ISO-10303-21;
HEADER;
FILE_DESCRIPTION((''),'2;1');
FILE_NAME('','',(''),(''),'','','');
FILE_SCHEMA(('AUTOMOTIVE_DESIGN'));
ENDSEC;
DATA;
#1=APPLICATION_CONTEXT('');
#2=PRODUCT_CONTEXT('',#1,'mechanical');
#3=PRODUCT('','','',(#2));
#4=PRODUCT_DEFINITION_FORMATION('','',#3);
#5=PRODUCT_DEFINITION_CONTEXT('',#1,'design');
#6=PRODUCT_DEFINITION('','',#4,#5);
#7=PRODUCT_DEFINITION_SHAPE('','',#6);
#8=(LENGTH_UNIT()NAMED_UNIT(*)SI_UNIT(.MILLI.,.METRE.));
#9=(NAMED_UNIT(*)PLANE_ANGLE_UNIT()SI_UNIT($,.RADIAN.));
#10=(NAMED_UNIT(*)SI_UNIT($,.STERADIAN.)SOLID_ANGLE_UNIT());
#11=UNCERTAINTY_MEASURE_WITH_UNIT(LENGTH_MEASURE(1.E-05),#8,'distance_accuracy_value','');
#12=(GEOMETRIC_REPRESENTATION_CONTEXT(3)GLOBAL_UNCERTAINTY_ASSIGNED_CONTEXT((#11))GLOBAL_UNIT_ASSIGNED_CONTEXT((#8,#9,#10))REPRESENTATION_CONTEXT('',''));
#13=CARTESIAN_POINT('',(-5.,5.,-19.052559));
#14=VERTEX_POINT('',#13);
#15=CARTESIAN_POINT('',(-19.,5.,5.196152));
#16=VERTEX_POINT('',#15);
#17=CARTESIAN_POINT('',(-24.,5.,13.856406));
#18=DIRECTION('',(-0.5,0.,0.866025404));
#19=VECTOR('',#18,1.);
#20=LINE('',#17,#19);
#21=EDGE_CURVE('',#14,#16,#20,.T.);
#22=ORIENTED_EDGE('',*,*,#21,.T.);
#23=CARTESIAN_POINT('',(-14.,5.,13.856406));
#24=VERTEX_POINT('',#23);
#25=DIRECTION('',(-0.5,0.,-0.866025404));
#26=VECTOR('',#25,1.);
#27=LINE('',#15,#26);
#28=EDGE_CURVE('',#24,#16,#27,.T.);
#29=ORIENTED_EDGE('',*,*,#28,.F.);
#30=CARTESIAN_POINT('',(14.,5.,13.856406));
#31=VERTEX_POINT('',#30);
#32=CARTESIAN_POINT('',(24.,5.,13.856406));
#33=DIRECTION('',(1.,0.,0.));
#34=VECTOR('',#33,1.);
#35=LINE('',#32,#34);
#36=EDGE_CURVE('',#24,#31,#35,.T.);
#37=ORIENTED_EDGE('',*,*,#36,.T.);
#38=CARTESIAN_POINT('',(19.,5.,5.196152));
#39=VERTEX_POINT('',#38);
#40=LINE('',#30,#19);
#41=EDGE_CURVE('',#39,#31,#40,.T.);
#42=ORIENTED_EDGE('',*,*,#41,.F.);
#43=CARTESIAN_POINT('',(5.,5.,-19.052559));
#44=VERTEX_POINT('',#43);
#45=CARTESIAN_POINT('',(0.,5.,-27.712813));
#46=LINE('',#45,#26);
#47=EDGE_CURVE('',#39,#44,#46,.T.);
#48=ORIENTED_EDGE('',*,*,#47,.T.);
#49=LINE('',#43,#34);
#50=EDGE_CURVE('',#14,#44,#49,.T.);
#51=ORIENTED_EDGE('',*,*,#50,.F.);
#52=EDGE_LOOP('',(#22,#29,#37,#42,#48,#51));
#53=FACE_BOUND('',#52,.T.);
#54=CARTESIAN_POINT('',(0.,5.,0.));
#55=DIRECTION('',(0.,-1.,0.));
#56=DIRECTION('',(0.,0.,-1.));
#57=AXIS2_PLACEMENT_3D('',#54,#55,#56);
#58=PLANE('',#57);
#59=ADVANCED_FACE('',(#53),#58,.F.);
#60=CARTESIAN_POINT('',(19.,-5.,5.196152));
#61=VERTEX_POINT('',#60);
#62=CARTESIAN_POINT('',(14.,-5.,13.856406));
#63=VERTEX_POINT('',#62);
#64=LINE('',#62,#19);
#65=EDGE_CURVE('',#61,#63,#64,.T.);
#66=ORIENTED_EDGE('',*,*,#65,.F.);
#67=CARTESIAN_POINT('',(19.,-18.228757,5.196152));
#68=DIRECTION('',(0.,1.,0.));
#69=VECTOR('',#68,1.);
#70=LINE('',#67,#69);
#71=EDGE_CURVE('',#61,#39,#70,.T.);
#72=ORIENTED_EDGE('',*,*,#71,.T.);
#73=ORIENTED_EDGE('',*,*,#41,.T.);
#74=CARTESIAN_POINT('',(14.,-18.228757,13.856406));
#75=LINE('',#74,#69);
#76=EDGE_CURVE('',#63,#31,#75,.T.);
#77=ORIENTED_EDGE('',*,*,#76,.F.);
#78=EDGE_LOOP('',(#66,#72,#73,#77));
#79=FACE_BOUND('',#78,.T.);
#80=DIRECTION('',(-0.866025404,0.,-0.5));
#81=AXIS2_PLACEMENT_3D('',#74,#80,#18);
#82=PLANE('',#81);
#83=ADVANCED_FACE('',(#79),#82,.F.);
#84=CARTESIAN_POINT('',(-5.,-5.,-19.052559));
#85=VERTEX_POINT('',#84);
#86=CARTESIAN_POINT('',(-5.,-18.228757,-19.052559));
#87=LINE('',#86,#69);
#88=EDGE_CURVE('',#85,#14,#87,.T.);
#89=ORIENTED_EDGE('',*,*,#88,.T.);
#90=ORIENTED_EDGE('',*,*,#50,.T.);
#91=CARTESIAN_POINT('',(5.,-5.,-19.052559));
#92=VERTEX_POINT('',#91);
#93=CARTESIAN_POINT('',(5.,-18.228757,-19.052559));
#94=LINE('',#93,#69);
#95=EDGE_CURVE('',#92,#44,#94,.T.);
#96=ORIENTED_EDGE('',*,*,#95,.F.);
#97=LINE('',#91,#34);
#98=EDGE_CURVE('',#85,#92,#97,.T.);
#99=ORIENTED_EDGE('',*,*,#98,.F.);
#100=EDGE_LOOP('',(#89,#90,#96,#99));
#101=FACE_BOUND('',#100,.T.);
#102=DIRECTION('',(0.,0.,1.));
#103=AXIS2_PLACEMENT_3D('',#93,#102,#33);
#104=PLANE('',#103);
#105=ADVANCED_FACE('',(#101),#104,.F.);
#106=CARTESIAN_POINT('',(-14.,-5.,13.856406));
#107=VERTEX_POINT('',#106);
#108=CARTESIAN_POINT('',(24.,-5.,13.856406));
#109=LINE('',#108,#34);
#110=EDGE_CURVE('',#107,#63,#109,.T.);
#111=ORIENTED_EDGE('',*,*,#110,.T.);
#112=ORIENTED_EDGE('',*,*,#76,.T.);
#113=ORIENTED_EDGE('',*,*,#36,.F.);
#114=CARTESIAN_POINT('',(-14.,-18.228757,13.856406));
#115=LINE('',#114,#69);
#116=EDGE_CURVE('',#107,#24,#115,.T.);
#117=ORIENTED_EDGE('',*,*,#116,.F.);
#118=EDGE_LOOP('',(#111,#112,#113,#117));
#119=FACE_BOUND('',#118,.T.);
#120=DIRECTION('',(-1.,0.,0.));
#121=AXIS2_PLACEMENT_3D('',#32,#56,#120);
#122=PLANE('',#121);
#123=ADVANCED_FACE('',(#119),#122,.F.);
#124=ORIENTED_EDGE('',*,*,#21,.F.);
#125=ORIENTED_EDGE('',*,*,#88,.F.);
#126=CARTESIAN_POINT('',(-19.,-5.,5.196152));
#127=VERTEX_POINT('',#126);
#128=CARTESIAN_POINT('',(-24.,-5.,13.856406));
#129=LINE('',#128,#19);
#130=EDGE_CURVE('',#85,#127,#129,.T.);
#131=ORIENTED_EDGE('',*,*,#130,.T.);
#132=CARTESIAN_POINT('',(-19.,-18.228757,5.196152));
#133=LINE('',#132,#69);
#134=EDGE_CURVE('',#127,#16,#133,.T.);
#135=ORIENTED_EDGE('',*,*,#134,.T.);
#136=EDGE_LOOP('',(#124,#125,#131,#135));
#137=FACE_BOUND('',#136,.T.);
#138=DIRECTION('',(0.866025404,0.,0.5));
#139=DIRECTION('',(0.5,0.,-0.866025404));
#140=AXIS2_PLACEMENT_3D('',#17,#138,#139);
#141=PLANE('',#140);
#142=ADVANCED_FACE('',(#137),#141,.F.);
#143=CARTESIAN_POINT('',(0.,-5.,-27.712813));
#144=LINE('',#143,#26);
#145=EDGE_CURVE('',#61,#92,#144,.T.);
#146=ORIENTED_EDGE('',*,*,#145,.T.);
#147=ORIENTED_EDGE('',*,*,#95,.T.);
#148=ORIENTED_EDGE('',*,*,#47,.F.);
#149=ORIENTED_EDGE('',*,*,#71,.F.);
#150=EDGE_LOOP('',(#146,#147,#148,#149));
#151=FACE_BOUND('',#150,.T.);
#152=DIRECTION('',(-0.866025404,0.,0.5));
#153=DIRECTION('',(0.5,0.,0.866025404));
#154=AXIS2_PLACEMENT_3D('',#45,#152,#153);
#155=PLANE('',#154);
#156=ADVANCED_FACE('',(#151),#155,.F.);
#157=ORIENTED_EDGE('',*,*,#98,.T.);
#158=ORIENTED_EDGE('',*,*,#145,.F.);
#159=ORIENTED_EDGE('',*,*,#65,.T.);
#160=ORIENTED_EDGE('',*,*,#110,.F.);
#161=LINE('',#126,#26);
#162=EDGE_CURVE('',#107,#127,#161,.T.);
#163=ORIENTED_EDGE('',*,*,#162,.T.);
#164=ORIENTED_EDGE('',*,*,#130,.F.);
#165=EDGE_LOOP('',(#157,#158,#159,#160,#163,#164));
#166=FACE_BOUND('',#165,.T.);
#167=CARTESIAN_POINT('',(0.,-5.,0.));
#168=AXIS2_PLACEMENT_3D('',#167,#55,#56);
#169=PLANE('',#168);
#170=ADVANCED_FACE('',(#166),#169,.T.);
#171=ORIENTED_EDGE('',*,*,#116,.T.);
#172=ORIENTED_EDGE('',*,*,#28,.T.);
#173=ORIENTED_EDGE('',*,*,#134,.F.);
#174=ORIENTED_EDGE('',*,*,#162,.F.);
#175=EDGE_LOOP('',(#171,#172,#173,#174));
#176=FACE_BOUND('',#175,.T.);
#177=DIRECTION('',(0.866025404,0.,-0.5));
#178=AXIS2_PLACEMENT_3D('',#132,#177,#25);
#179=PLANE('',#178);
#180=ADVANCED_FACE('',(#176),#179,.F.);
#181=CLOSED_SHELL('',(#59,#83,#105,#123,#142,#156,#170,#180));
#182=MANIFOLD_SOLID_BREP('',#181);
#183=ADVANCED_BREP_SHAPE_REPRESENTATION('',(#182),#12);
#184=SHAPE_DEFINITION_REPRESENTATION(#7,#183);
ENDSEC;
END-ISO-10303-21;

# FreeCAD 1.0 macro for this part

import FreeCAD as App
import Part
import Sketcher
from FreeCAD import Vector
Q = App.Units.Quantity

doc = App.newDocument("Part")
body = doc.addObject("PartDesign::Body", "Body")

sketch1 = body.newObject("Sketcher::SketchObject", "Sketch")
sketch1.AttachmentSupport = (doc.getObject("XZ_Plane"), [""])
sketch1.MapMode = "FlatFace"
sketch1.addGeometry([
    Part.LineSegment(Vector(0, -28, 0), Vector(-24, 14, 0)),
    Part.LineSegment(Vector(-24, 14, 0), Vector(24, 14, 0)),
    Part.LineSegment(Vector(24, 14, 0), Vector(0, -28, 0)),
], False)
sketch1.addConstraint([
    Sketcher.Constraint("Coincident", 0, 2, 1, 1),
    Sketcher.Constraint("Coincident", 1, 2, 2, 1),
    Sketcher.Constraint("Coincident", 2, 2, 0, 1),
    Sketcher.Constraint("Horizontal", 1),
    Sketcher.Constraint("PointOnObject", 2, 2, -2),
    Sketcher.Constraint("Equal", 0, 2),
    Sketcher.Constraint("DistanceX", 1, 1, 1, 2, Q("48 mm")),
    Sketcher.Constraint("Angle", 0, Q("120 deg")),
    Sketcher.Constraint("DistanceY", -1, 1, 0, 2, Q("13.856406 mm")),
])
pad1 = body.newObject("PartDesign::Pad", "Pad")
pad1.Profile = sketch1
pad1.Length = 10
pad1.Midplane = True

sketch2 = body.newObject("Sketcher::SketchObject", "Sketch001")
sketch2.AttachmentSupport = (doc.getObject("XZ_Plane"), [""])
sketch2.MapMode = "FlatFace"
sketch2.AttachmentOffset = App.Placement(Vector(0, 0, -5), App.Rotation())
sketch2.addGeometry([
    Part.LineSegment(Vector(19, 5, 0), Vector(14, 14, 0)),
    Part.LineSegment(Vector(14, 14, 0), Vector(24, 14, 0)),
    Part.LineSegment(Vector(24, 14, 0), Vector(19, 5, 0)),
], False)
sketch2.addConstraint([
    Sketcher.Constraint("Coincident", 0, 2, 1, 1),
    Sketcher.Constraint("Coincident", 1, 2, 2, 1),
    Sketcher.Constraint("Coincident", 2, 2, 0, 1),
    Sketcher.Constraint("Horizontal", 1),
    Sketcher.Constraint("Equal", 0, 2),
    Sketcher.Constraint("DistanceX", 1, 1, 1, 2, Q("10 mm")),
    Sketcher.Constraint("Angle", 0, Q("120 deg")),
    Sketcher.Constraint("DistanceX", -1, 1, 0, 2, Q("14 mm")),
    Sketcher.Constraint("DistanceY", -1, 1, 0, 2, Q("13.856406 mm")),
])
pocket1 = body.newObject("PartDesign::Pocket", "Pocket")
pocket1.Profile = sketch2
pocket1.Length = 10
pocket1.Reversed = True
doc.recompute()

polarpattern = body.newObject("PartDesign::PolarPattern", "PolarPattern")
polarpattern.Originals = [pocket1]
polarpattern.Axis = (doc.getObject("Y_Axis"), [""])
polarpattern.Angle = 360
polarpattern.Occurrences = 3
body.Tip = polarpattern

doc.recompute()
